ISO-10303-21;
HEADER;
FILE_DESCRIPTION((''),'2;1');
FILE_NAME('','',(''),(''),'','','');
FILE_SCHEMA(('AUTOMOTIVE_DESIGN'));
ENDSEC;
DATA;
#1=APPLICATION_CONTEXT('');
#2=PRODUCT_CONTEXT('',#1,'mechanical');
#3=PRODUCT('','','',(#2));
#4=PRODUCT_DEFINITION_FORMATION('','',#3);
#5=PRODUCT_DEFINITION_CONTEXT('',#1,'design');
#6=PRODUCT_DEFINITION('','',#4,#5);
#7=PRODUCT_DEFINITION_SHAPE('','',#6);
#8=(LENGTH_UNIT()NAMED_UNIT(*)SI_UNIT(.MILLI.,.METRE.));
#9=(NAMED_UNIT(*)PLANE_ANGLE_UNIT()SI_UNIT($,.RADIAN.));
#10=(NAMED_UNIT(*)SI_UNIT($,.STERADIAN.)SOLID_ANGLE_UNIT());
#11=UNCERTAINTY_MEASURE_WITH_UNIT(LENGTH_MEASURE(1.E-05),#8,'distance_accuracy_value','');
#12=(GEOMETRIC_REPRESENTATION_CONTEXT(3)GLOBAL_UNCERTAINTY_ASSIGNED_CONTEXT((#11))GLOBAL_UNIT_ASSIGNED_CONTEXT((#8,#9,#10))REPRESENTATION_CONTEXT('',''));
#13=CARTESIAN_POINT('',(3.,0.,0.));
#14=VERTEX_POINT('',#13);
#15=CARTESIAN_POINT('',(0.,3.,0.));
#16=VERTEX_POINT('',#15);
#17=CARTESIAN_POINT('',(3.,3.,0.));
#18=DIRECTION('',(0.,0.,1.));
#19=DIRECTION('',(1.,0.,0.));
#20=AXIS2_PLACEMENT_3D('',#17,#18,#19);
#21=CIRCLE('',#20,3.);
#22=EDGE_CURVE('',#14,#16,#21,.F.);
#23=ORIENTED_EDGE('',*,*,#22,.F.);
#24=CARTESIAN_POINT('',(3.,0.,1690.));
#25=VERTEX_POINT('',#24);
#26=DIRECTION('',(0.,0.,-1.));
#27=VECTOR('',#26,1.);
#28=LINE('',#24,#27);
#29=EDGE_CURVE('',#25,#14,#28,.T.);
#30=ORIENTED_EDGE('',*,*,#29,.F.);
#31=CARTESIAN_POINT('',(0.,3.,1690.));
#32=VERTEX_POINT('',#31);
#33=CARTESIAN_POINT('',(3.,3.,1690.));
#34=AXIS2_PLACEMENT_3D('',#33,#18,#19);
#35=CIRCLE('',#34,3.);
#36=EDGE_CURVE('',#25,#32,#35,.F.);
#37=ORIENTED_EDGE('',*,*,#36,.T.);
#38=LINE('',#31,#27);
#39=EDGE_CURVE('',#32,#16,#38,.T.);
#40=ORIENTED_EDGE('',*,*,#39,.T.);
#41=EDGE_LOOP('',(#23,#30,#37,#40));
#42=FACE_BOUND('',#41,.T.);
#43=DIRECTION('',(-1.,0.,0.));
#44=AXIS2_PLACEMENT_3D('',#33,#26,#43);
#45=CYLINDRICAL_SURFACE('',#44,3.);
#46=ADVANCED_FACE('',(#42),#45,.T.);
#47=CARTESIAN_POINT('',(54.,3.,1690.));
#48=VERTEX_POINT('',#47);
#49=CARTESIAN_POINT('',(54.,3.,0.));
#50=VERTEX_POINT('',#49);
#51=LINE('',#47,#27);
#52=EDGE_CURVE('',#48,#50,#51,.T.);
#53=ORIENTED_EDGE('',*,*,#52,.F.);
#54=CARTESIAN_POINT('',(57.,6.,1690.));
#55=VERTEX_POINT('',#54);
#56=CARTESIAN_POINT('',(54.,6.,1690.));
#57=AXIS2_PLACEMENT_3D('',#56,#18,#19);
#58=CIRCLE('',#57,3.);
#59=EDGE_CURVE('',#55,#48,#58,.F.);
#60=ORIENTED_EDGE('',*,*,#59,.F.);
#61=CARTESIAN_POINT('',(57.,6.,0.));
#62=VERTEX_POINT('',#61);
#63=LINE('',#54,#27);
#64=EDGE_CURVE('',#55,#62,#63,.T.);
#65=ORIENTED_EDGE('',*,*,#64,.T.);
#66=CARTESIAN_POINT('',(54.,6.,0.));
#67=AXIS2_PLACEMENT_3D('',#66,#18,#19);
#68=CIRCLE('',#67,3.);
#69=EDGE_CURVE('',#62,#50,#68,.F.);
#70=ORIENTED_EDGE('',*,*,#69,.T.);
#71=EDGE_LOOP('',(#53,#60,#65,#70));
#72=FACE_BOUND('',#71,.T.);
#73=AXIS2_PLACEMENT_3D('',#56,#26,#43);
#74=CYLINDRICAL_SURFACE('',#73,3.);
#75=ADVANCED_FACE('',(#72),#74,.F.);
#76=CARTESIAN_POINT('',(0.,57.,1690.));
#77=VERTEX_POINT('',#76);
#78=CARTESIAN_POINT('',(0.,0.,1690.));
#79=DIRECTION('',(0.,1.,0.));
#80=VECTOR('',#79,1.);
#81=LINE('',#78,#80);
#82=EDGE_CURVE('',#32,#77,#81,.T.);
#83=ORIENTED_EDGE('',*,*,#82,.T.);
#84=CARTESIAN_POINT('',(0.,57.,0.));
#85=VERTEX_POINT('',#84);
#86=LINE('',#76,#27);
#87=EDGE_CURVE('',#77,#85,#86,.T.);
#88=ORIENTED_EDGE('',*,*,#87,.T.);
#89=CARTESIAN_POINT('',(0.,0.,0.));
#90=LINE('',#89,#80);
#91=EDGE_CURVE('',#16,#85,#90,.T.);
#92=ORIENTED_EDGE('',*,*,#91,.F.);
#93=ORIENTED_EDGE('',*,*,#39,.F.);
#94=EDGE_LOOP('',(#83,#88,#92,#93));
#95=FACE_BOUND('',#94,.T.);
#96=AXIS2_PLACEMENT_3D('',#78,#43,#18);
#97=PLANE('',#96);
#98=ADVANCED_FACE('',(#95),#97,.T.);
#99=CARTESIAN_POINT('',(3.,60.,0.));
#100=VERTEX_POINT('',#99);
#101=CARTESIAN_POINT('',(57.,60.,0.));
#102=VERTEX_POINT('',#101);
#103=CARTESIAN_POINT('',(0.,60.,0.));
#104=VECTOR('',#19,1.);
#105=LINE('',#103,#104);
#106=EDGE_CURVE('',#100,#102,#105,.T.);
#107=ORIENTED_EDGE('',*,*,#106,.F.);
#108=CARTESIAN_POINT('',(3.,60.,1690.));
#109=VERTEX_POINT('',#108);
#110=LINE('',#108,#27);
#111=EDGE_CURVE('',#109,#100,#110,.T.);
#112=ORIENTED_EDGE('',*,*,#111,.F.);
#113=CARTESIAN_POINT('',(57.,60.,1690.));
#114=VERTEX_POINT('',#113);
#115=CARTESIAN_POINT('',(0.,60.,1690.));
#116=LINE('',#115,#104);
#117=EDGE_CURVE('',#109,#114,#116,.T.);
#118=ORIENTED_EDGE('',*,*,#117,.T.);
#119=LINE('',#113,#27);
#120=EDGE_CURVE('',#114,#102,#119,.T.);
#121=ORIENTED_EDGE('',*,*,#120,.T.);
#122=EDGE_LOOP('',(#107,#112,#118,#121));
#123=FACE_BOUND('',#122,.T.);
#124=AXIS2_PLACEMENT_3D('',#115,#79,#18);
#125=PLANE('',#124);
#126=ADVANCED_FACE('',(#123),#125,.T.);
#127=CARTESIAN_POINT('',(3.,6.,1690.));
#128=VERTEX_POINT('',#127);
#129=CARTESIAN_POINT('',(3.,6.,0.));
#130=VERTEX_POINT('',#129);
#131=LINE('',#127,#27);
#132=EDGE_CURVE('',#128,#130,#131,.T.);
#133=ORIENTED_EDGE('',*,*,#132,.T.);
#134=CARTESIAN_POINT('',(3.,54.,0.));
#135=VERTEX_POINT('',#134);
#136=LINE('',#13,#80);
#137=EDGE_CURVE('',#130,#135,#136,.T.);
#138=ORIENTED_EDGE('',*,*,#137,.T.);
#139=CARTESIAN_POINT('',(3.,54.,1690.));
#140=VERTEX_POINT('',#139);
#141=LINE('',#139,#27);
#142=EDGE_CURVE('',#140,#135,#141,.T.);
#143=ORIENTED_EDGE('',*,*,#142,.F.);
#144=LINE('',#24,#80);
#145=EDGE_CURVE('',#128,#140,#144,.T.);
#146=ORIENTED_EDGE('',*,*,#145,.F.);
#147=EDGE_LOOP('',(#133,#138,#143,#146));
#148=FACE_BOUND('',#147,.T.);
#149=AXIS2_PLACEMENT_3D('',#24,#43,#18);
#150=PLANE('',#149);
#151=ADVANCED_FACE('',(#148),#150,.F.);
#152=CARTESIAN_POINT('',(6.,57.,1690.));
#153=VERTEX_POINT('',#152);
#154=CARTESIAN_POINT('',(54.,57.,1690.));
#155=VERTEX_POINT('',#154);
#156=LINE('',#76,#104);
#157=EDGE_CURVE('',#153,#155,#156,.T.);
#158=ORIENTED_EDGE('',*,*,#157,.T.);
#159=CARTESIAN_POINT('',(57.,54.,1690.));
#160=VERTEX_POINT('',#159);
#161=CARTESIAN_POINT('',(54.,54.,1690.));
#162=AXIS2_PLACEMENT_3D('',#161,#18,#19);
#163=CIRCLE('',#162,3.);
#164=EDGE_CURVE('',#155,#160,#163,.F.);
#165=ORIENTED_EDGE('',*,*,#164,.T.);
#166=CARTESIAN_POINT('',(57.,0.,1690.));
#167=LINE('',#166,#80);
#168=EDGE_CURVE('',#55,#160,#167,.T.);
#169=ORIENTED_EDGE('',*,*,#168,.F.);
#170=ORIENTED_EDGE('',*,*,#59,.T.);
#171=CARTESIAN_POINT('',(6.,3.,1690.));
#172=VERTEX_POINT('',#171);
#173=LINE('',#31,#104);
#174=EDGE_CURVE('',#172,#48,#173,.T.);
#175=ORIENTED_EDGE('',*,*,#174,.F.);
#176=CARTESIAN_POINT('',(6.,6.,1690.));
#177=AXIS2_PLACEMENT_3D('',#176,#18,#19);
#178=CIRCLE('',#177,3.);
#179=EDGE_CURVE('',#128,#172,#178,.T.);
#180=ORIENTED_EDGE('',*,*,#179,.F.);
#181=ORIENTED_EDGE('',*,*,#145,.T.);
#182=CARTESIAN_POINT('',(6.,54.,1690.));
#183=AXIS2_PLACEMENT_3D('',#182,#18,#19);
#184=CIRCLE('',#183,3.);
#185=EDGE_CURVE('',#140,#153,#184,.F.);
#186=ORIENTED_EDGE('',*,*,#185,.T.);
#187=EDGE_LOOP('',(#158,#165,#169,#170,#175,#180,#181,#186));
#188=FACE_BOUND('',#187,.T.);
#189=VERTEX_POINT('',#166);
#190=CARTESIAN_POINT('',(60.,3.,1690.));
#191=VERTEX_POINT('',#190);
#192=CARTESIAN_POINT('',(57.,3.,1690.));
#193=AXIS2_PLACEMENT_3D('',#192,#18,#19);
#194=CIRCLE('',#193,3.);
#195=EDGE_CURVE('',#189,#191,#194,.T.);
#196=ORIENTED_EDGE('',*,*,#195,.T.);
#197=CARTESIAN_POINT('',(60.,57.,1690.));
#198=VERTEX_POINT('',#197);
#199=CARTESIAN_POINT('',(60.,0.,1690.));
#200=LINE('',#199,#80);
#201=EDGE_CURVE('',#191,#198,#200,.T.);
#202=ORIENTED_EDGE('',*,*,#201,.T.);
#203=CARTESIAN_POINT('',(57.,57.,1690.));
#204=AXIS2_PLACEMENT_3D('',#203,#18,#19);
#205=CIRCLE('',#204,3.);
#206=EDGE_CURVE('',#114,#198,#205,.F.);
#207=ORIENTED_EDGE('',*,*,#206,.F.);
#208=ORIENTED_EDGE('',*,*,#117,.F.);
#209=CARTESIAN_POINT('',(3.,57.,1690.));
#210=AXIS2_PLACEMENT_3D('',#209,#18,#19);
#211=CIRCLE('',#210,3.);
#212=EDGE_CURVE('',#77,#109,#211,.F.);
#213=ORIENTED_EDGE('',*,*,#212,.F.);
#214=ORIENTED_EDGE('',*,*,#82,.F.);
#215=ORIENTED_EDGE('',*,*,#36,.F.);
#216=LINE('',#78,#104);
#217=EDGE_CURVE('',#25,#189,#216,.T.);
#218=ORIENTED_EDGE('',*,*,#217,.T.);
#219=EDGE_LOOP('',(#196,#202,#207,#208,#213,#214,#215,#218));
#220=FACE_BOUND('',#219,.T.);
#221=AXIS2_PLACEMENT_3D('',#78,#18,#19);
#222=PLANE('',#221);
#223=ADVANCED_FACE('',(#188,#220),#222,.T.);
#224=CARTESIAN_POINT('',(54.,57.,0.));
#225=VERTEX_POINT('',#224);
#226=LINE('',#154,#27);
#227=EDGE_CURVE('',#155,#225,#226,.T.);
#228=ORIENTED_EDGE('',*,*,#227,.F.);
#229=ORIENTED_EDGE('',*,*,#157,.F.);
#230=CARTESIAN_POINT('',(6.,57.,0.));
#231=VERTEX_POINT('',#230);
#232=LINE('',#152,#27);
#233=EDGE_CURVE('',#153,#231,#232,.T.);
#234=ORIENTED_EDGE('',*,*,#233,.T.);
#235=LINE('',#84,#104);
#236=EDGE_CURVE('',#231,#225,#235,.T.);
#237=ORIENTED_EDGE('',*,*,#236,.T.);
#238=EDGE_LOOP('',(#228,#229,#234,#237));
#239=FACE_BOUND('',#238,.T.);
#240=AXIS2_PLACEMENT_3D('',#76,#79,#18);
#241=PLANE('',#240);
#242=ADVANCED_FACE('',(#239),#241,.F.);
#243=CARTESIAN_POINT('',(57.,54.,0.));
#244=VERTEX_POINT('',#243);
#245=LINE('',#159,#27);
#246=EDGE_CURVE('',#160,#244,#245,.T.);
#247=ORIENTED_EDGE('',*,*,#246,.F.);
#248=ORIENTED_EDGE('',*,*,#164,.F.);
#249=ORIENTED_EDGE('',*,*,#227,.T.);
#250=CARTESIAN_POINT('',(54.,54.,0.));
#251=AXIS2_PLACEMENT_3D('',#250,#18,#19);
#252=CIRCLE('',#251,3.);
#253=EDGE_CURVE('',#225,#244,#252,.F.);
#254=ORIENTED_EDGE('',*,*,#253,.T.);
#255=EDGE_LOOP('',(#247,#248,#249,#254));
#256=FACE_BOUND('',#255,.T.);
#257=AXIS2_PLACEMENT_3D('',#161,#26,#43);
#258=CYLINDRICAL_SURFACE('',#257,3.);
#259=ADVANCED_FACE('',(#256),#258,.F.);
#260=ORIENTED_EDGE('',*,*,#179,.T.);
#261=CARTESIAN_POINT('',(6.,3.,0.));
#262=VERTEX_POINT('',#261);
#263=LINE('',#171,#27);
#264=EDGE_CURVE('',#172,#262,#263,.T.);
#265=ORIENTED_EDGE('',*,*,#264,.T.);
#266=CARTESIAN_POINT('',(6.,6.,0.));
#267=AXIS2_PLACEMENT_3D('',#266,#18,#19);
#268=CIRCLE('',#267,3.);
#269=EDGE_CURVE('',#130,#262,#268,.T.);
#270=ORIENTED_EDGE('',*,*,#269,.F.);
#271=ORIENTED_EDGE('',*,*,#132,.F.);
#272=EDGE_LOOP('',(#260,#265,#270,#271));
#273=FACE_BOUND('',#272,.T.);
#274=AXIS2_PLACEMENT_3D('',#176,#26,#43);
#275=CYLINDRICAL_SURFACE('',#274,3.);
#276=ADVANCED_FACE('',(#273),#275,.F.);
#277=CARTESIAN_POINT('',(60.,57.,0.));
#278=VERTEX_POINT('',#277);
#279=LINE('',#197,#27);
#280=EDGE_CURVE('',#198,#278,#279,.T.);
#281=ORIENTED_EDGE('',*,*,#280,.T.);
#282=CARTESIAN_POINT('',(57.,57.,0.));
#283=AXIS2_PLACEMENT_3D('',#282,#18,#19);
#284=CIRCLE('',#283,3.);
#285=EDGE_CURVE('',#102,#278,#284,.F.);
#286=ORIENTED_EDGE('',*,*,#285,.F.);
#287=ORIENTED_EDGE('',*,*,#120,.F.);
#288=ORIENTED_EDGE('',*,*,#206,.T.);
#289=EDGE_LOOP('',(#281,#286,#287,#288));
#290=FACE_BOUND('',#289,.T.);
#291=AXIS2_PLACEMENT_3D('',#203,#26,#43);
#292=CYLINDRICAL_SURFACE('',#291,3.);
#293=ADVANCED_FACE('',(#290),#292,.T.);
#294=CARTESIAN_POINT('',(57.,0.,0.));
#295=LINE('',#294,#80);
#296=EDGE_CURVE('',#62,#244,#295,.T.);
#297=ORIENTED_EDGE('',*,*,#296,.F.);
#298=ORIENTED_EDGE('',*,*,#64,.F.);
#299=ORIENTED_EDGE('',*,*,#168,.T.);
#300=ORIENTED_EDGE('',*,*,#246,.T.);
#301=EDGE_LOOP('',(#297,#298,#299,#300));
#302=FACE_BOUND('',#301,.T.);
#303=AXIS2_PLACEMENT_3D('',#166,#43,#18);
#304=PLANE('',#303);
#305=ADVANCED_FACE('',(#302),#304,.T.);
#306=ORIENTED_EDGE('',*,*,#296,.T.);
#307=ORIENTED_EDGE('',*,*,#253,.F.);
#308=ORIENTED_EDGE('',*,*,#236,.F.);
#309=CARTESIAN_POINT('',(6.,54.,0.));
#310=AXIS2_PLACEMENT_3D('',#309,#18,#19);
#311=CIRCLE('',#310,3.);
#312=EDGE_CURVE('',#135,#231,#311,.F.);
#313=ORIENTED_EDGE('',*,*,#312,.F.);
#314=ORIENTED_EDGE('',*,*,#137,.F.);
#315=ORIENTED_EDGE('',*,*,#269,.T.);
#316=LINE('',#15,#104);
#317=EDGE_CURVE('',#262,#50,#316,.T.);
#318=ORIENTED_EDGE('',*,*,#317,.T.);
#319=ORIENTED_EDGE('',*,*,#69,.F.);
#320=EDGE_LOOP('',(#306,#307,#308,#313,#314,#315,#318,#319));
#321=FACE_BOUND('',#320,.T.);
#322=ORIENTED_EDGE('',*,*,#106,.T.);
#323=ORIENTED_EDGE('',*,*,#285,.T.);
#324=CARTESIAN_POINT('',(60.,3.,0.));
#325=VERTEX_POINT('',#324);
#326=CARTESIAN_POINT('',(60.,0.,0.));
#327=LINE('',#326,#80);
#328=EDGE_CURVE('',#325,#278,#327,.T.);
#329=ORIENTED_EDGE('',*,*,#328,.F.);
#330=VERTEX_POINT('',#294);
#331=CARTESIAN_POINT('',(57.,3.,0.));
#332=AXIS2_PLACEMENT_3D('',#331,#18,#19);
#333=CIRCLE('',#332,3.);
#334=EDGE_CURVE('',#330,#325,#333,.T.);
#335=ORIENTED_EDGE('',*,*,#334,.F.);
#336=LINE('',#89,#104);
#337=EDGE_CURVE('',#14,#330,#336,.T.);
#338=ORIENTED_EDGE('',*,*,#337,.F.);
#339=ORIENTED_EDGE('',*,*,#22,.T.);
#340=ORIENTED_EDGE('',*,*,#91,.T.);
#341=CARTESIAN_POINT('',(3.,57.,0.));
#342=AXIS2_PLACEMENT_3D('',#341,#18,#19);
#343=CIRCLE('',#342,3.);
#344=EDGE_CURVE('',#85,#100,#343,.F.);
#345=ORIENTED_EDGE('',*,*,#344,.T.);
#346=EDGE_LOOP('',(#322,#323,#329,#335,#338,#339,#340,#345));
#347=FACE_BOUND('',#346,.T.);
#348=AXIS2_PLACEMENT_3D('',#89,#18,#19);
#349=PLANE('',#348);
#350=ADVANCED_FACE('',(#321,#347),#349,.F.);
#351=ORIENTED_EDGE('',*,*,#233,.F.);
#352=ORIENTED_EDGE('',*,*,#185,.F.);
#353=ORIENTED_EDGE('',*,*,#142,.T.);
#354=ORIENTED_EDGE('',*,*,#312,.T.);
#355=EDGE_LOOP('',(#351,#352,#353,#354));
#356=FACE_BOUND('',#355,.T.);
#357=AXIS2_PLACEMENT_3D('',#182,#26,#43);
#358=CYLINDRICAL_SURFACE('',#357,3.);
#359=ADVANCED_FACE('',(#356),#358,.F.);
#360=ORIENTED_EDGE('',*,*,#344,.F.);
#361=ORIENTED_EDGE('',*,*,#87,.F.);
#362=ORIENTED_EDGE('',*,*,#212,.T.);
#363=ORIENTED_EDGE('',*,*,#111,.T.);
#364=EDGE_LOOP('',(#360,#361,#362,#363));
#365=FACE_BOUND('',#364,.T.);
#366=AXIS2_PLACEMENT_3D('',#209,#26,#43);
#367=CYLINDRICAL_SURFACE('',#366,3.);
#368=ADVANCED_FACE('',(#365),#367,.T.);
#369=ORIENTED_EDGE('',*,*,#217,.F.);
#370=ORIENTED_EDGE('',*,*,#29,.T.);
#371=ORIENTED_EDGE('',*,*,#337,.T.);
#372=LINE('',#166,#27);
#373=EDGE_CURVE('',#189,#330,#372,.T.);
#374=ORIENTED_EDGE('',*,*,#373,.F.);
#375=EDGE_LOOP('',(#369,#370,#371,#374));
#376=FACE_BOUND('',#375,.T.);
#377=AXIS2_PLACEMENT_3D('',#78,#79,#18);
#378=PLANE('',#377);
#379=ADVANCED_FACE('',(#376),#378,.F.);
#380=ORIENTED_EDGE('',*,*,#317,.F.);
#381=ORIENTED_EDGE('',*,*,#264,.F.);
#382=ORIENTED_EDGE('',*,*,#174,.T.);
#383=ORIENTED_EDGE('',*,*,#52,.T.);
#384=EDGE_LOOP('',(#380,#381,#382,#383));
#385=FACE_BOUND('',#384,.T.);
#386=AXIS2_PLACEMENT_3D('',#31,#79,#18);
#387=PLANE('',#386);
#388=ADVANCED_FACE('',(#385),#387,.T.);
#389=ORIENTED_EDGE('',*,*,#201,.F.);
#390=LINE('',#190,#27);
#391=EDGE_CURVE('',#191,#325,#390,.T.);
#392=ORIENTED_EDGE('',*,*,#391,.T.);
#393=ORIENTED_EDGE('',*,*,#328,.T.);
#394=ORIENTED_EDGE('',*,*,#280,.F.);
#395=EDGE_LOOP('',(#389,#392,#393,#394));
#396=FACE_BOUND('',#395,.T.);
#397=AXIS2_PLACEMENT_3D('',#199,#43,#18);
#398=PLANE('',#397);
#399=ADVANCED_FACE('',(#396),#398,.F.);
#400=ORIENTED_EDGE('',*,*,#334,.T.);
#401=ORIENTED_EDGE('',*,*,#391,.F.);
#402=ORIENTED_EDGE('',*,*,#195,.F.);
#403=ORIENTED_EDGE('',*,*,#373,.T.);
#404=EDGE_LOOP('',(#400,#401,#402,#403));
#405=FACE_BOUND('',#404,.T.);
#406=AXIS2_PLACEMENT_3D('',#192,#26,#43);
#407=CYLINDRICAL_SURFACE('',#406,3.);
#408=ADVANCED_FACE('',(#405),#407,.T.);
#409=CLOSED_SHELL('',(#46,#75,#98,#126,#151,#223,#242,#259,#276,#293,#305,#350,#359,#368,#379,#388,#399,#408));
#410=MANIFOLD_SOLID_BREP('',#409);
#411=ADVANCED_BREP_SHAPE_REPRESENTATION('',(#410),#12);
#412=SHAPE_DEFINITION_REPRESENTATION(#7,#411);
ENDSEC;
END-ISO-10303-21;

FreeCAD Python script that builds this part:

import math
import FreeCAD as App
import Part
import Sketcher

V = App.Vector

doc = App.newDocument("Part")
body = doc.addObject("PartDesign::Body", "Body")

sketch1 = doc.addObject("Sketcher::SketchObject", "Sketch")
body.addObject(sketch1)
sketch1.AttachmentSupport = (doc.XY_Plane, [""])
sketch1.MapMode = "FlatFace"
sketch1.addGeometry(Part.ArcOfCircle(Part.Circle(V(3, 57, 0), V(0, 0, 1), 3), math.radians(90), math.radians(180)), False)
sketch1.addGeometry(Part.LineSegment(V(0, 57, 0), V(0, 3, 0)), False)
sketch1.addGeometry(Part.ArcOfCircle(Part.Circle(V(3, 3, 0), V(0, 0, 1), 3), math.radians(180), math.radians(270)), False)
sketch1.addGeometry(Part.LineSegment(V(3, 0, 0), V(57, 0, 0)), False)
sketch1.addGeometry(Part.ArcOfCircle(Part.Circle(V(57, 3, 0), V(0, 0, 1), 3), math.radians(-90), math.radians(0)), False)
sketch1.addGeometry(Part.LineSegment(V(60, 3, 0), V(60, 57, 0)), False)
sketch1.addGeometry(Part.ArcOfCircle(Part.Circle(V(57, 57, 0), V(0, 0, 1), 3), math.radians(0), math.radians(90)), False)
sketch1.addGeometry(Part.LineSegment(V(57, 60, 0), V(3, 60, 0)), False)
sketch1.addGeometry(Part.LineSegment(V(3, 6, 0), V(3, 54, 0)), False)
sketch1.addGeometry(Part.ArcOfCircle(Part.Circle(V(6, 54, 0), V(0, 0, 1), 3), math.radians(90), math.radians(180)), False)
sketch1.addGeometry(Part.LineSegment(V(6, 57, 0), V(54, 57, 0)), False)
sketch1.addGeometry(Part.ArcOfCircle(Part.Circle(V(54, 54, 0), V(0, 0, 1), 3), math.radians(0), math.radians(90)), False)
sketch1.addGeometry(Part.LineSegment(V(57, 54, 0), V(57, 6, 0)), False)
sketch1.addGeometry(Part.ArcOfCircle(Part.Circle(V(54, 6, 0), V(0, 0, 1), 3), math.radians(-90), math.radians(0)), False)
sketch1.addGeometry(Part.LineSegment(V(54, 3, 0), V(6, 3, 0)), False)
sketch1.addGeometry(Part.ArcOfCircle(Part.Circle(V(6, 6, 0), V(0, 0, 1), 3), math.radians(180), math.radians(270)), False)
sketch1.addConstraint(Sketcher.Constraint("Tangent", 0, 2, 1, 1))
sketch1.addConstraint(Sketcher.Constraint("Tangent", 1, 2, 2, 1))
sketch1.addConstraint(Sketcher.Constraint("Tangent", 2, 2, 3, 1))
sketch1.addConstraint(Sketcher.Constraint("Tangent", 3, 2, 4, 1))
sketch1.addConstraint(Sketcher.Constraint("Tangent", 4, 2, 5, 1))
sketch1.addConstraint(Sketcher.Constraint("Tangent", 5, 2, 6, 1))
sketch1.addConstraint(Sketcher.Constraint("Tangent", 6, 2, 7, 1))
sketch1.addConstraint(Sketcher.Constraint("Tangent", 7, 2, 0, 1))
sketch1.addConstraint(Sketcher.Constraint("Tangent", 8, 2, 9, 2))
sketch1.addConstraint(Sketcher.Constraint("Tangent", 9, 1, 10, 1))
sketch1.addConstraint(Sketcher.Constraint("Tangent", 10, 2, 11, 2))
sketch1.addConstraint(Sketcher.Constraint("Tangent", 11, 1, 12, 1))
sketch1.addConstraint(Sketcher.Constraint("Tangent", 12, 2, 13, 2))
sketch1.addConstraint(Sketcher.Constraint("Tangent", 13, 1, 14, 1))
sketch1.addConstraint(Sketcher.Constraint("Tangent", 14, 2, 15, 2))
sketch1.addConstraint(Sketcher.Constraint("Tangent", 15, 1, 8, 1))
sketch1.addConstraint(Sketcher.Constraint("Vertical", 1))
sketch1.addConstraint(Sketcher.Constraint("Horizontal", 3))
sketch1.addConstraint(Sketcher.Constraint("Vertical", 5))
sketch1.addConstraint(Sketcher.Constraint("Horizontal", 7))
sketch1.addConstraint(Sketcher.Constraint("Vertical", 8))
sketch1.addConstraint(Sketcher.Constraint("Horizontal", 10))
sketch1.addConstraint(Sketcher.Constraint("Vertical", 12))
sketch1.addConstraint(Sketcher.Constraint("Horizontal", 14))
sketch1.addConstraint(Sketcher.Constraint("Equal", 0, 2))
sketch1.addConstraint(Sketcher.Constraint("Equal", 2, 4))
sketch1.addConstraint(Sketcher.Constraint("Equal", 4, 6))
sketch1.addConstraint(Sketcher.Constraint("Equal", 6, 9))
sketch1.addConstraint(Sketcher.Constraint("Equal", 9, 11))
sketch1.addConstraint(Sketcher.Constraint("Equal", 11, 13))
sketch1.addConstraint(Sketcher.Constraint("Equal", 13, 15))
sketch1.addConstraint(Sketcher.Constraint("PointOnObject", 0, 2, -2))
sketch1.addConstraint(Sketcher.Constraint("PointOnObject", 2, 2, -1))
sketch1.addConstraint(Sketcher.Constraint("Horizontal", 5, 2, 9, 1))
sketch1.addConstraint(Sketcher.Constraint("Horizontal", 4, 2, 13, 1))
sketch1.addConstraint(Sketcher.Constraint("Vertical", 7, 2, 8, 2))
sketch1.addConstraint(Sketcher.Constraint("Vertical", 6, 2, 11, 1))
sketch1.addConstraint(Sketcher.Constraint("Equal", 7, 1))
sketch1.addConstraint(Sketcher.Constraint("Radius", 0, 3.0))
sketch1.addConstraint(Sketcher.Constraint("DistanceX", 3, 1, 3, 2, 54.0))
pad1 = doc.addObject("PartDesign::Pad", "Pad")
body.addObject(pad1)
pad1.Profile = sketch1
pad1.Length = 1690

doc.recompute()
